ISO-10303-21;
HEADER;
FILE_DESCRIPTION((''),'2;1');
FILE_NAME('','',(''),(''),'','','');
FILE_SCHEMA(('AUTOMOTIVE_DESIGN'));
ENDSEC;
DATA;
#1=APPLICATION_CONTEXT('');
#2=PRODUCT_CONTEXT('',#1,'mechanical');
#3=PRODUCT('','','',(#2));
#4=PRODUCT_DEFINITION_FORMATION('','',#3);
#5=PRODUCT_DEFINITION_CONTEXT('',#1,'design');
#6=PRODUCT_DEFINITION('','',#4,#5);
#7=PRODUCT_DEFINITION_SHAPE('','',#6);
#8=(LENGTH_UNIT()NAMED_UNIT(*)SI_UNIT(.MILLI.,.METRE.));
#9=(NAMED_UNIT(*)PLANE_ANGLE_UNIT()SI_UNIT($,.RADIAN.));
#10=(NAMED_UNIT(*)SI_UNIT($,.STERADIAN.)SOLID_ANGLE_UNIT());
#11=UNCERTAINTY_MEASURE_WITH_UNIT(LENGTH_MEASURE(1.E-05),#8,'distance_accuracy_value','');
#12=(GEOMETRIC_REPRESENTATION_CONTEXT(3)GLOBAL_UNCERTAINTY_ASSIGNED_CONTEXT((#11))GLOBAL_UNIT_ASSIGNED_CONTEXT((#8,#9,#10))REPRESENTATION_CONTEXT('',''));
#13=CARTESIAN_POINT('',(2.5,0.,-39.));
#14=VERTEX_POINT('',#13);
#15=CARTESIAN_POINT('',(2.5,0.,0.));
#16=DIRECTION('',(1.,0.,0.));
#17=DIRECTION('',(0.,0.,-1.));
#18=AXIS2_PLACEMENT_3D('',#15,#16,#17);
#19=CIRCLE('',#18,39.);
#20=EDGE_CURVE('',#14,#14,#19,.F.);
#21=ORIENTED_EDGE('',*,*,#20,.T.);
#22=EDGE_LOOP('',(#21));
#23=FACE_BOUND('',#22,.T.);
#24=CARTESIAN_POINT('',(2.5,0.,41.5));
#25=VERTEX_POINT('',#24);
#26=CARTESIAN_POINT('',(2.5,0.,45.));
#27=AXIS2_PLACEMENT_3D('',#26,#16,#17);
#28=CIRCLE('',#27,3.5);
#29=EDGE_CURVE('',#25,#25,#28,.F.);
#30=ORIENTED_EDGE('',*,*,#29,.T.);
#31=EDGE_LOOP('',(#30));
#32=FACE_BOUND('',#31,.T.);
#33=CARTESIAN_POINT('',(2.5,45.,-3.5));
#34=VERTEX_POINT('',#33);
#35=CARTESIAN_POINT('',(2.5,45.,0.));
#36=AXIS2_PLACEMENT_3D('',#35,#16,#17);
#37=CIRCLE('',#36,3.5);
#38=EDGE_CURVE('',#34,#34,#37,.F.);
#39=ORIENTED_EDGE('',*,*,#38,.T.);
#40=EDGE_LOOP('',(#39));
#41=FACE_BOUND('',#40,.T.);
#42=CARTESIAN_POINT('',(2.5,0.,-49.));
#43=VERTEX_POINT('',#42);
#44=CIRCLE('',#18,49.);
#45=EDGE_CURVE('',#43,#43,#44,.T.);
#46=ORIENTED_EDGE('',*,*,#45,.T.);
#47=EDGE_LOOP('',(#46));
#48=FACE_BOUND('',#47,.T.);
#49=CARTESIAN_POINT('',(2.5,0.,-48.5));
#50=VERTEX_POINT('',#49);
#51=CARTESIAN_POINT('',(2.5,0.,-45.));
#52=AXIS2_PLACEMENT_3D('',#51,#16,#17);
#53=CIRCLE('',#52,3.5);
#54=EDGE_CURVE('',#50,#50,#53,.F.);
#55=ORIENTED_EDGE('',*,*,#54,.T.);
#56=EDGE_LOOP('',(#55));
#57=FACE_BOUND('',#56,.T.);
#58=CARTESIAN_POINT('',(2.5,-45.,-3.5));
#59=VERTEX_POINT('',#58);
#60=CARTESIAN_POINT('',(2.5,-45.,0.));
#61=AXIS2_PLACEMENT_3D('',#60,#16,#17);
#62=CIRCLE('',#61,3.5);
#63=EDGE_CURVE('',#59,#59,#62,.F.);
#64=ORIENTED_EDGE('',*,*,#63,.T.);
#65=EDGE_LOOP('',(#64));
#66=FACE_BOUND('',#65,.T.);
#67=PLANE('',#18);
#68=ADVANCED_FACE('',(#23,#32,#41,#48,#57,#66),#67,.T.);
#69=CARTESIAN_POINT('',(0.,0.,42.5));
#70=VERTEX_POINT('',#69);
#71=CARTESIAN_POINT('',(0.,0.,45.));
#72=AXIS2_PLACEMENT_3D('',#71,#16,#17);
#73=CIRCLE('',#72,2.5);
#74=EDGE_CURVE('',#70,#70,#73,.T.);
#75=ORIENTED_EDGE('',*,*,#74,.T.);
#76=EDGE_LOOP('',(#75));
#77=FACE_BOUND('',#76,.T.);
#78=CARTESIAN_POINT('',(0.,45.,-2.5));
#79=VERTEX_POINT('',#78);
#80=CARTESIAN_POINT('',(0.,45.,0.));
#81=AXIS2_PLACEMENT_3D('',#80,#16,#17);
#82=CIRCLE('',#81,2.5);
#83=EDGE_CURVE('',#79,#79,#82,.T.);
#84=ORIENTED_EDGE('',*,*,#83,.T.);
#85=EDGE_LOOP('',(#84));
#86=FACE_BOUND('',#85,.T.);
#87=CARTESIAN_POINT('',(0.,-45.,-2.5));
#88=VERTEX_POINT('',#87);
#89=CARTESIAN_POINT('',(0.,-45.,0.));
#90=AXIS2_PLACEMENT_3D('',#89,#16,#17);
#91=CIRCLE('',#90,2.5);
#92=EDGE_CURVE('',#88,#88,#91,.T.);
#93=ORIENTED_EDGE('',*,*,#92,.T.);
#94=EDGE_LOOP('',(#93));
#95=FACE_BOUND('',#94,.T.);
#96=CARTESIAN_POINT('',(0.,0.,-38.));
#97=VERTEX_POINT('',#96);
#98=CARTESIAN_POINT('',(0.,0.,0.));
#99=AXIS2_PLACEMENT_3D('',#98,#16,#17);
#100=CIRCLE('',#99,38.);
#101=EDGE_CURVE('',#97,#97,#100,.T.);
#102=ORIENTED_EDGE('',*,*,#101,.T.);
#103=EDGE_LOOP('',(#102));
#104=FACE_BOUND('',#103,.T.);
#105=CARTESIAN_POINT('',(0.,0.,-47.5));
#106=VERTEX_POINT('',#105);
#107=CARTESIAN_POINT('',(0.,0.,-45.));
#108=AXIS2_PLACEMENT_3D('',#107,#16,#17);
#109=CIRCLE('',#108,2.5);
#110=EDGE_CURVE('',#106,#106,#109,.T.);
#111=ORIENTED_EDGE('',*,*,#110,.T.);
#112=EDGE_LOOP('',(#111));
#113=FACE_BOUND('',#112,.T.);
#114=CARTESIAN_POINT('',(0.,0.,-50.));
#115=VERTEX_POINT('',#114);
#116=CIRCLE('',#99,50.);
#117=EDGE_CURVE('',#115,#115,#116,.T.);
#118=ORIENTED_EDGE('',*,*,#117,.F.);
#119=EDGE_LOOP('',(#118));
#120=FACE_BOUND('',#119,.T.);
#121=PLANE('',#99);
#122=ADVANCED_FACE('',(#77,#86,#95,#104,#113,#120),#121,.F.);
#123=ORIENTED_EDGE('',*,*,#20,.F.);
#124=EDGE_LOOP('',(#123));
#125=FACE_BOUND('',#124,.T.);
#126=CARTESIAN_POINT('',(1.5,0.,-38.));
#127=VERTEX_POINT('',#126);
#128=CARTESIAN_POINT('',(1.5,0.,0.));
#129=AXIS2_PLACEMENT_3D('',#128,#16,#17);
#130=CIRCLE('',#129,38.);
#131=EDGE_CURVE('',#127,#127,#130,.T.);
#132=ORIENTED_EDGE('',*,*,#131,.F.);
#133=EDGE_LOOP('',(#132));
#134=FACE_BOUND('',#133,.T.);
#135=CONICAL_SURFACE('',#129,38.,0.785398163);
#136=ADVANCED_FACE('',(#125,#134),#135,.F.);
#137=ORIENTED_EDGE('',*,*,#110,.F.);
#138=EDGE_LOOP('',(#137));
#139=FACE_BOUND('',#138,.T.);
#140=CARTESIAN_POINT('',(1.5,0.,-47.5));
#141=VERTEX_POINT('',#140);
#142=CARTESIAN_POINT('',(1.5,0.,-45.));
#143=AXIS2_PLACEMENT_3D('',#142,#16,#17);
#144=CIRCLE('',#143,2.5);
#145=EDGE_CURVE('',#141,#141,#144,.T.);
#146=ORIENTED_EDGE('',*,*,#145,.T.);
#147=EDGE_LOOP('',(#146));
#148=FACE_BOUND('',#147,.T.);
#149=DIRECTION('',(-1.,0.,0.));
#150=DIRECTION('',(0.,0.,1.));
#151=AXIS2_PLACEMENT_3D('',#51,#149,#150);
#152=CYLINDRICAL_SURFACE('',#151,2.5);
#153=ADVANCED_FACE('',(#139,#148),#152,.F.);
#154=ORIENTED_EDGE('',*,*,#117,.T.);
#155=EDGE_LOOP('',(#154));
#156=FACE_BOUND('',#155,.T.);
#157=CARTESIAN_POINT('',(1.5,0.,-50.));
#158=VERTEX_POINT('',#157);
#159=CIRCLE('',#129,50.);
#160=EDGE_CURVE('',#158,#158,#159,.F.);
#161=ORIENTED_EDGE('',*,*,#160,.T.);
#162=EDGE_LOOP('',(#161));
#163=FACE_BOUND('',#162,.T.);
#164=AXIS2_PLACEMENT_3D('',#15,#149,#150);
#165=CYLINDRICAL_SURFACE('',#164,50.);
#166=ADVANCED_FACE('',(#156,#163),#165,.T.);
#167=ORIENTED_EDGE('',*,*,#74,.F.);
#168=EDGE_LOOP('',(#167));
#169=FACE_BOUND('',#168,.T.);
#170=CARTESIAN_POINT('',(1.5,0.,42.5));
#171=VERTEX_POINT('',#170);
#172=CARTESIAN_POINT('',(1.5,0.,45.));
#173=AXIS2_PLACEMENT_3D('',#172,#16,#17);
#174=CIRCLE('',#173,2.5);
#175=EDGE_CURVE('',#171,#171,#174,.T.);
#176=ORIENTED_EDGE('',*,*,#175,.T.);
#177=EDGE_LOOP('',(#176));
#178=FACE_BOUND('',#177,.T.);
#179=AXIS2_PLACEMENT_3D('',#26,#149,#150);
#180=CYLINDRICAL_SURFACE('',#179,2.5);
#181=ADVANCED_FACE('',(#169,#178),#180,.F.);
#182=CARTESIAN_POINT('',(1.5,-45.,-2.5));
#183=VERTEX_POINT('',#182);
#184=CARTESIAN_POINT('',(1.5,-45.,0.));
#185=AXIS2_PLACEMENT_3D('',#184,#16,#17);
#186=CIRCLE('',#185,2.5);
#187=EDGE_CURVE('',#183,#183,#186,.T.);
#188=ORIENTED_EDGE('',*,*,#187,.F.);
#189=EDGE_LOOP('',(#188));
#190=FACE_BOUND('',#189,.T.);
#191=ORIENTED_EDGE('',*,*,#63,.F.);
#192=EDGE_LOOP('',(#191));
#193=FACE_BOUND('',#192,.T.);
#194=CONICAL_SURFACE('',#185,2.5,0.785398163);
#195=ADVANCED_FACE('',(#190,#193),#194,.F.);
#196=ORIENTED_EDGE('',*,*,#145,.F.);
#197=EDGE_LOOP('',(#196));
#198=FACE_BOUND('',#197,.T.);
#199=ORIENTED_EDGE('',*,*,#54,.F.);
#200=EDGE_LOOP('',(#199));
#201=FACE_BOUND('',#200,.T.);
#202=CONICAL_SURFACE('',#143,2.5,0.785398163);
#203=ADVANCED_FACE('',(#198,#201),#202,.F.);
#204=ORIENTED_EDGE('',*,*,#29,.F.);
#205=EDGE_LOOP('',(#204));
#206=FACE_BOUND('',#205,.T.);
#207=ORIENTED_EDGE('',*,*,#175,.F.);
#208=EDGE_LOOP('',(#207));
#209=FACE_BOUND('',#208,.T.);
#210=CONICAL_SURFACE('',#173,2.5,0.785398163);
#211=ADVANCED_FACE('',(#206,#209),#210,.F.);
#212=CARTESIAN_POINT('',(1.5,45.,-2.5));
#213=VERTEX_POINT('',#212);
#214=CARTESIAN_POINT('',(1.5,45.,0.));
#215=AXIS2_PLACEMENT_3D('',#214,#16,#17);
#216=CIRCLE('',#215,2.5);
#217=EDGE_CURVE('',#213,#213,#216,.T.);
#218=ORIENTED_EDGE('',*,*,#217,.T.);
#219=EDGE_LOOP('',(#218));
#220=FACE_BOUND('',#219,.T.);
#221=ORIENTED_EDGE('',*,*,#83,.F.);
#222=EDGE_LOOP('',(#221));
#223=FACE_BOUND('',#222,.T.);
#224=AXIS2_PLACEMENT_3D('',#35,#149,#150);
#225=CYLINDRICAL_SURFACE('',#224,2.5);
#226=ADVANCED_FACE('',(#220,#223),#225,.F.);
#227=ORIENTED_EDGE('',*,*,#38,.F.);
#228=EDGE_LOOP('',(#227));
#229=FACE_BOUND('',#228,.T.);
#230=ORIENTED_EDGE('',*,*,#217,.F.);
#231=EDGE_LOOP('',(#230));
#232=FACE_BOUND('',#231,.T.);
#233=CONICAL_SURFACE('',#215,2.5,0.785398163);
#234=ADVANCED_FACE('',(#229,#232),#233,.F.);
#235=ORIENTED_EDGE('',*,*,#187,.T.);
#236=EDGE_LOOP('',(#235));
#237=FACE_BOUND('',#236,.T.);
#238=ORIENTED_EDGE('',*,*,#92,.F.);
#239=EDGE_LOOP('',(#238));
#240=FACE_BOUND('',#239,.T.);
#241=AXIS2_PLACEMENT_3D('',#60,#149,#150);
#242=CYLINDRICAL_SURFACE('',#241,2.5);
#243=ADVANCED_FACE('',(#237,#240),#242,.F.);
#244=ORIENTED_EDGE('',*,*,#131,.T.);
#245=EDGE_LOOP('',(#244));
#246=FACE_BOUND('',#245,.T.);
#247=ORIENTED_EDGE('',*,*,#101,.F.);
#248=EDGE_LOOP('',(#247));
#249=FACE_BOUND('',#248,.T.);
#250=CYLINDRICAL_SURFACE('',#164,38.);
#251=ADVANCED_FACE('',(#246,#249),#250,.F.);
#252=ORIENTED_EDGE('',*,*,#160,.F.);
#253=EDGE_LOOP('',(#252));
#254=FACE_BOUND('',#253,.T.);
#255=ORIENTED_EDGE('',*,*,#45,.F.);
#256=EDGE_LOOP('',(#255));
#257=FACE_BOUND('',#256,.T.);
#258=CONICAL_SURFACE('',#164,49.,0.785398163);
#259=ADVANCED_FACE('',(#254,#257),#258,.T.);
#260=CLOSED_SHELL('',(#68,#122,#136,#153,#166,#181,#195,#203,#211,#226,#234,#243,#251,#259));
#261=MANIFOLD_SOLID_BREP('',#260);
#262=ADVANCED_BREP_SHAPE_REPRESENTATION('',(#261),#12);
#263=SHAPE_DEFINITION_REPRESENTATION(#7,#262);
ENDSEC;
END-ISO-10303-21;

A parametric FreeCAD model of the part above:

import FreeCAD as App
import Part
import Sketcher
from FreeCAD import Vector
Q = App.Units.Quantity


def edges_at(feature, points):
    """Names of the edges that pass closest to the given points."""
    edges = feature.Shape.Edges
    near = lambda p: min(range(len(edges)), key=lambda i: edges[i].distToShape(Part.Vertex(*p))[0])
    return sorted({f"Edge{near(p) + 1}" for p in points})

doc = App.newDocument("Part")
body = doc.addObject("PartDesign::Body", "Body")

# Sketch on YZ plane
sketch1 = body.newObject("Sketcher::SketchObject", "Sketch")
sketch1.AttachmentSupport = (doc.getObject("YZ_Plane"), [""])
sketch1.MapMode = "FlatFace"
sketch1.addGeometry([
    Part.Circle(Vector(0, 0, 0), Vector(0, 0, 1), 50),  # 0
    Part.Circle(Vector(-45, 0, 0), Vector(0, 0, 1), 2.5),  # 1
    Part.Circle(Vector(0, 45, 0), Vector(0, 0, 1), 2.5),  # 2
    Part.Circle(Vector(0, 0, 0), Vector(0, 0, 1), 38),  # 3
    Part.Circle(Vector(0, -45, 0), Vector(0, 0, 1), 2.5),  # 4
    Part.Circle(Vector(45, 0, 0), Vector(0, 0, 1), 2.5),  # 5
], False)
sketch1.addConstraint([
    Sketcher.Constraint("Coincident", 0, 3, -1, 1),
    Sketcher.Constraint("Coincident", 3, 3, -1, 1),
    Sketcher.Constraint("Equal", 1, 2),
    Sketcher.Constraint("Equal", 2, 4),
    Sketcher.Constraint("Equal", 4, 5),
    Sketcher.Constraint("Symmetric", 2, 3, 4, 3, -1, 1),
    Sketcher.Constraint("Symmetric", 1, 3, 5, 3, -1, 1),
    Sketcher.Constraint("PointOnObject", 1, 3, -1),
    Sketcher.Constraint("PointOnObject", 2, 3, -2),
    Sketcher.Constraint("Diameter", 0, Q("100 mm")),
    Sketcher.Constraint("Diameter", 1, Q("5 mm")),
    Sketcher.Constraint("Diameter", 3, Q("76 mm")),
    Sketcher.Constraint("DistanceX", 1, 3, -1, 1, Q("45 mm")),
    Sketcher.Constraint("DistanceY", -1, 1, 2, 3, Q("45 mm")),
])
pad1 = body.newObject("PartDesign::Pad", "Pad")
pad1.Profile = sketch1
pad1.Length = 2.5
doc.recompute()

chamfer = body.newObject("PartDesign::Chamfer", "Chamfer")
chamfer.Base = (pad1, edges_at(pad1, [
    (2.5, 0, -42.5),
    (2.5, -45, 2.5),
    (2.5, 0, 47.5),
    (2.5, 0, 50),
    (2.5, 0, 38),
    (2.5, 45, 2.5),
]))
chamfer.Size = 1

doc.recompute()
